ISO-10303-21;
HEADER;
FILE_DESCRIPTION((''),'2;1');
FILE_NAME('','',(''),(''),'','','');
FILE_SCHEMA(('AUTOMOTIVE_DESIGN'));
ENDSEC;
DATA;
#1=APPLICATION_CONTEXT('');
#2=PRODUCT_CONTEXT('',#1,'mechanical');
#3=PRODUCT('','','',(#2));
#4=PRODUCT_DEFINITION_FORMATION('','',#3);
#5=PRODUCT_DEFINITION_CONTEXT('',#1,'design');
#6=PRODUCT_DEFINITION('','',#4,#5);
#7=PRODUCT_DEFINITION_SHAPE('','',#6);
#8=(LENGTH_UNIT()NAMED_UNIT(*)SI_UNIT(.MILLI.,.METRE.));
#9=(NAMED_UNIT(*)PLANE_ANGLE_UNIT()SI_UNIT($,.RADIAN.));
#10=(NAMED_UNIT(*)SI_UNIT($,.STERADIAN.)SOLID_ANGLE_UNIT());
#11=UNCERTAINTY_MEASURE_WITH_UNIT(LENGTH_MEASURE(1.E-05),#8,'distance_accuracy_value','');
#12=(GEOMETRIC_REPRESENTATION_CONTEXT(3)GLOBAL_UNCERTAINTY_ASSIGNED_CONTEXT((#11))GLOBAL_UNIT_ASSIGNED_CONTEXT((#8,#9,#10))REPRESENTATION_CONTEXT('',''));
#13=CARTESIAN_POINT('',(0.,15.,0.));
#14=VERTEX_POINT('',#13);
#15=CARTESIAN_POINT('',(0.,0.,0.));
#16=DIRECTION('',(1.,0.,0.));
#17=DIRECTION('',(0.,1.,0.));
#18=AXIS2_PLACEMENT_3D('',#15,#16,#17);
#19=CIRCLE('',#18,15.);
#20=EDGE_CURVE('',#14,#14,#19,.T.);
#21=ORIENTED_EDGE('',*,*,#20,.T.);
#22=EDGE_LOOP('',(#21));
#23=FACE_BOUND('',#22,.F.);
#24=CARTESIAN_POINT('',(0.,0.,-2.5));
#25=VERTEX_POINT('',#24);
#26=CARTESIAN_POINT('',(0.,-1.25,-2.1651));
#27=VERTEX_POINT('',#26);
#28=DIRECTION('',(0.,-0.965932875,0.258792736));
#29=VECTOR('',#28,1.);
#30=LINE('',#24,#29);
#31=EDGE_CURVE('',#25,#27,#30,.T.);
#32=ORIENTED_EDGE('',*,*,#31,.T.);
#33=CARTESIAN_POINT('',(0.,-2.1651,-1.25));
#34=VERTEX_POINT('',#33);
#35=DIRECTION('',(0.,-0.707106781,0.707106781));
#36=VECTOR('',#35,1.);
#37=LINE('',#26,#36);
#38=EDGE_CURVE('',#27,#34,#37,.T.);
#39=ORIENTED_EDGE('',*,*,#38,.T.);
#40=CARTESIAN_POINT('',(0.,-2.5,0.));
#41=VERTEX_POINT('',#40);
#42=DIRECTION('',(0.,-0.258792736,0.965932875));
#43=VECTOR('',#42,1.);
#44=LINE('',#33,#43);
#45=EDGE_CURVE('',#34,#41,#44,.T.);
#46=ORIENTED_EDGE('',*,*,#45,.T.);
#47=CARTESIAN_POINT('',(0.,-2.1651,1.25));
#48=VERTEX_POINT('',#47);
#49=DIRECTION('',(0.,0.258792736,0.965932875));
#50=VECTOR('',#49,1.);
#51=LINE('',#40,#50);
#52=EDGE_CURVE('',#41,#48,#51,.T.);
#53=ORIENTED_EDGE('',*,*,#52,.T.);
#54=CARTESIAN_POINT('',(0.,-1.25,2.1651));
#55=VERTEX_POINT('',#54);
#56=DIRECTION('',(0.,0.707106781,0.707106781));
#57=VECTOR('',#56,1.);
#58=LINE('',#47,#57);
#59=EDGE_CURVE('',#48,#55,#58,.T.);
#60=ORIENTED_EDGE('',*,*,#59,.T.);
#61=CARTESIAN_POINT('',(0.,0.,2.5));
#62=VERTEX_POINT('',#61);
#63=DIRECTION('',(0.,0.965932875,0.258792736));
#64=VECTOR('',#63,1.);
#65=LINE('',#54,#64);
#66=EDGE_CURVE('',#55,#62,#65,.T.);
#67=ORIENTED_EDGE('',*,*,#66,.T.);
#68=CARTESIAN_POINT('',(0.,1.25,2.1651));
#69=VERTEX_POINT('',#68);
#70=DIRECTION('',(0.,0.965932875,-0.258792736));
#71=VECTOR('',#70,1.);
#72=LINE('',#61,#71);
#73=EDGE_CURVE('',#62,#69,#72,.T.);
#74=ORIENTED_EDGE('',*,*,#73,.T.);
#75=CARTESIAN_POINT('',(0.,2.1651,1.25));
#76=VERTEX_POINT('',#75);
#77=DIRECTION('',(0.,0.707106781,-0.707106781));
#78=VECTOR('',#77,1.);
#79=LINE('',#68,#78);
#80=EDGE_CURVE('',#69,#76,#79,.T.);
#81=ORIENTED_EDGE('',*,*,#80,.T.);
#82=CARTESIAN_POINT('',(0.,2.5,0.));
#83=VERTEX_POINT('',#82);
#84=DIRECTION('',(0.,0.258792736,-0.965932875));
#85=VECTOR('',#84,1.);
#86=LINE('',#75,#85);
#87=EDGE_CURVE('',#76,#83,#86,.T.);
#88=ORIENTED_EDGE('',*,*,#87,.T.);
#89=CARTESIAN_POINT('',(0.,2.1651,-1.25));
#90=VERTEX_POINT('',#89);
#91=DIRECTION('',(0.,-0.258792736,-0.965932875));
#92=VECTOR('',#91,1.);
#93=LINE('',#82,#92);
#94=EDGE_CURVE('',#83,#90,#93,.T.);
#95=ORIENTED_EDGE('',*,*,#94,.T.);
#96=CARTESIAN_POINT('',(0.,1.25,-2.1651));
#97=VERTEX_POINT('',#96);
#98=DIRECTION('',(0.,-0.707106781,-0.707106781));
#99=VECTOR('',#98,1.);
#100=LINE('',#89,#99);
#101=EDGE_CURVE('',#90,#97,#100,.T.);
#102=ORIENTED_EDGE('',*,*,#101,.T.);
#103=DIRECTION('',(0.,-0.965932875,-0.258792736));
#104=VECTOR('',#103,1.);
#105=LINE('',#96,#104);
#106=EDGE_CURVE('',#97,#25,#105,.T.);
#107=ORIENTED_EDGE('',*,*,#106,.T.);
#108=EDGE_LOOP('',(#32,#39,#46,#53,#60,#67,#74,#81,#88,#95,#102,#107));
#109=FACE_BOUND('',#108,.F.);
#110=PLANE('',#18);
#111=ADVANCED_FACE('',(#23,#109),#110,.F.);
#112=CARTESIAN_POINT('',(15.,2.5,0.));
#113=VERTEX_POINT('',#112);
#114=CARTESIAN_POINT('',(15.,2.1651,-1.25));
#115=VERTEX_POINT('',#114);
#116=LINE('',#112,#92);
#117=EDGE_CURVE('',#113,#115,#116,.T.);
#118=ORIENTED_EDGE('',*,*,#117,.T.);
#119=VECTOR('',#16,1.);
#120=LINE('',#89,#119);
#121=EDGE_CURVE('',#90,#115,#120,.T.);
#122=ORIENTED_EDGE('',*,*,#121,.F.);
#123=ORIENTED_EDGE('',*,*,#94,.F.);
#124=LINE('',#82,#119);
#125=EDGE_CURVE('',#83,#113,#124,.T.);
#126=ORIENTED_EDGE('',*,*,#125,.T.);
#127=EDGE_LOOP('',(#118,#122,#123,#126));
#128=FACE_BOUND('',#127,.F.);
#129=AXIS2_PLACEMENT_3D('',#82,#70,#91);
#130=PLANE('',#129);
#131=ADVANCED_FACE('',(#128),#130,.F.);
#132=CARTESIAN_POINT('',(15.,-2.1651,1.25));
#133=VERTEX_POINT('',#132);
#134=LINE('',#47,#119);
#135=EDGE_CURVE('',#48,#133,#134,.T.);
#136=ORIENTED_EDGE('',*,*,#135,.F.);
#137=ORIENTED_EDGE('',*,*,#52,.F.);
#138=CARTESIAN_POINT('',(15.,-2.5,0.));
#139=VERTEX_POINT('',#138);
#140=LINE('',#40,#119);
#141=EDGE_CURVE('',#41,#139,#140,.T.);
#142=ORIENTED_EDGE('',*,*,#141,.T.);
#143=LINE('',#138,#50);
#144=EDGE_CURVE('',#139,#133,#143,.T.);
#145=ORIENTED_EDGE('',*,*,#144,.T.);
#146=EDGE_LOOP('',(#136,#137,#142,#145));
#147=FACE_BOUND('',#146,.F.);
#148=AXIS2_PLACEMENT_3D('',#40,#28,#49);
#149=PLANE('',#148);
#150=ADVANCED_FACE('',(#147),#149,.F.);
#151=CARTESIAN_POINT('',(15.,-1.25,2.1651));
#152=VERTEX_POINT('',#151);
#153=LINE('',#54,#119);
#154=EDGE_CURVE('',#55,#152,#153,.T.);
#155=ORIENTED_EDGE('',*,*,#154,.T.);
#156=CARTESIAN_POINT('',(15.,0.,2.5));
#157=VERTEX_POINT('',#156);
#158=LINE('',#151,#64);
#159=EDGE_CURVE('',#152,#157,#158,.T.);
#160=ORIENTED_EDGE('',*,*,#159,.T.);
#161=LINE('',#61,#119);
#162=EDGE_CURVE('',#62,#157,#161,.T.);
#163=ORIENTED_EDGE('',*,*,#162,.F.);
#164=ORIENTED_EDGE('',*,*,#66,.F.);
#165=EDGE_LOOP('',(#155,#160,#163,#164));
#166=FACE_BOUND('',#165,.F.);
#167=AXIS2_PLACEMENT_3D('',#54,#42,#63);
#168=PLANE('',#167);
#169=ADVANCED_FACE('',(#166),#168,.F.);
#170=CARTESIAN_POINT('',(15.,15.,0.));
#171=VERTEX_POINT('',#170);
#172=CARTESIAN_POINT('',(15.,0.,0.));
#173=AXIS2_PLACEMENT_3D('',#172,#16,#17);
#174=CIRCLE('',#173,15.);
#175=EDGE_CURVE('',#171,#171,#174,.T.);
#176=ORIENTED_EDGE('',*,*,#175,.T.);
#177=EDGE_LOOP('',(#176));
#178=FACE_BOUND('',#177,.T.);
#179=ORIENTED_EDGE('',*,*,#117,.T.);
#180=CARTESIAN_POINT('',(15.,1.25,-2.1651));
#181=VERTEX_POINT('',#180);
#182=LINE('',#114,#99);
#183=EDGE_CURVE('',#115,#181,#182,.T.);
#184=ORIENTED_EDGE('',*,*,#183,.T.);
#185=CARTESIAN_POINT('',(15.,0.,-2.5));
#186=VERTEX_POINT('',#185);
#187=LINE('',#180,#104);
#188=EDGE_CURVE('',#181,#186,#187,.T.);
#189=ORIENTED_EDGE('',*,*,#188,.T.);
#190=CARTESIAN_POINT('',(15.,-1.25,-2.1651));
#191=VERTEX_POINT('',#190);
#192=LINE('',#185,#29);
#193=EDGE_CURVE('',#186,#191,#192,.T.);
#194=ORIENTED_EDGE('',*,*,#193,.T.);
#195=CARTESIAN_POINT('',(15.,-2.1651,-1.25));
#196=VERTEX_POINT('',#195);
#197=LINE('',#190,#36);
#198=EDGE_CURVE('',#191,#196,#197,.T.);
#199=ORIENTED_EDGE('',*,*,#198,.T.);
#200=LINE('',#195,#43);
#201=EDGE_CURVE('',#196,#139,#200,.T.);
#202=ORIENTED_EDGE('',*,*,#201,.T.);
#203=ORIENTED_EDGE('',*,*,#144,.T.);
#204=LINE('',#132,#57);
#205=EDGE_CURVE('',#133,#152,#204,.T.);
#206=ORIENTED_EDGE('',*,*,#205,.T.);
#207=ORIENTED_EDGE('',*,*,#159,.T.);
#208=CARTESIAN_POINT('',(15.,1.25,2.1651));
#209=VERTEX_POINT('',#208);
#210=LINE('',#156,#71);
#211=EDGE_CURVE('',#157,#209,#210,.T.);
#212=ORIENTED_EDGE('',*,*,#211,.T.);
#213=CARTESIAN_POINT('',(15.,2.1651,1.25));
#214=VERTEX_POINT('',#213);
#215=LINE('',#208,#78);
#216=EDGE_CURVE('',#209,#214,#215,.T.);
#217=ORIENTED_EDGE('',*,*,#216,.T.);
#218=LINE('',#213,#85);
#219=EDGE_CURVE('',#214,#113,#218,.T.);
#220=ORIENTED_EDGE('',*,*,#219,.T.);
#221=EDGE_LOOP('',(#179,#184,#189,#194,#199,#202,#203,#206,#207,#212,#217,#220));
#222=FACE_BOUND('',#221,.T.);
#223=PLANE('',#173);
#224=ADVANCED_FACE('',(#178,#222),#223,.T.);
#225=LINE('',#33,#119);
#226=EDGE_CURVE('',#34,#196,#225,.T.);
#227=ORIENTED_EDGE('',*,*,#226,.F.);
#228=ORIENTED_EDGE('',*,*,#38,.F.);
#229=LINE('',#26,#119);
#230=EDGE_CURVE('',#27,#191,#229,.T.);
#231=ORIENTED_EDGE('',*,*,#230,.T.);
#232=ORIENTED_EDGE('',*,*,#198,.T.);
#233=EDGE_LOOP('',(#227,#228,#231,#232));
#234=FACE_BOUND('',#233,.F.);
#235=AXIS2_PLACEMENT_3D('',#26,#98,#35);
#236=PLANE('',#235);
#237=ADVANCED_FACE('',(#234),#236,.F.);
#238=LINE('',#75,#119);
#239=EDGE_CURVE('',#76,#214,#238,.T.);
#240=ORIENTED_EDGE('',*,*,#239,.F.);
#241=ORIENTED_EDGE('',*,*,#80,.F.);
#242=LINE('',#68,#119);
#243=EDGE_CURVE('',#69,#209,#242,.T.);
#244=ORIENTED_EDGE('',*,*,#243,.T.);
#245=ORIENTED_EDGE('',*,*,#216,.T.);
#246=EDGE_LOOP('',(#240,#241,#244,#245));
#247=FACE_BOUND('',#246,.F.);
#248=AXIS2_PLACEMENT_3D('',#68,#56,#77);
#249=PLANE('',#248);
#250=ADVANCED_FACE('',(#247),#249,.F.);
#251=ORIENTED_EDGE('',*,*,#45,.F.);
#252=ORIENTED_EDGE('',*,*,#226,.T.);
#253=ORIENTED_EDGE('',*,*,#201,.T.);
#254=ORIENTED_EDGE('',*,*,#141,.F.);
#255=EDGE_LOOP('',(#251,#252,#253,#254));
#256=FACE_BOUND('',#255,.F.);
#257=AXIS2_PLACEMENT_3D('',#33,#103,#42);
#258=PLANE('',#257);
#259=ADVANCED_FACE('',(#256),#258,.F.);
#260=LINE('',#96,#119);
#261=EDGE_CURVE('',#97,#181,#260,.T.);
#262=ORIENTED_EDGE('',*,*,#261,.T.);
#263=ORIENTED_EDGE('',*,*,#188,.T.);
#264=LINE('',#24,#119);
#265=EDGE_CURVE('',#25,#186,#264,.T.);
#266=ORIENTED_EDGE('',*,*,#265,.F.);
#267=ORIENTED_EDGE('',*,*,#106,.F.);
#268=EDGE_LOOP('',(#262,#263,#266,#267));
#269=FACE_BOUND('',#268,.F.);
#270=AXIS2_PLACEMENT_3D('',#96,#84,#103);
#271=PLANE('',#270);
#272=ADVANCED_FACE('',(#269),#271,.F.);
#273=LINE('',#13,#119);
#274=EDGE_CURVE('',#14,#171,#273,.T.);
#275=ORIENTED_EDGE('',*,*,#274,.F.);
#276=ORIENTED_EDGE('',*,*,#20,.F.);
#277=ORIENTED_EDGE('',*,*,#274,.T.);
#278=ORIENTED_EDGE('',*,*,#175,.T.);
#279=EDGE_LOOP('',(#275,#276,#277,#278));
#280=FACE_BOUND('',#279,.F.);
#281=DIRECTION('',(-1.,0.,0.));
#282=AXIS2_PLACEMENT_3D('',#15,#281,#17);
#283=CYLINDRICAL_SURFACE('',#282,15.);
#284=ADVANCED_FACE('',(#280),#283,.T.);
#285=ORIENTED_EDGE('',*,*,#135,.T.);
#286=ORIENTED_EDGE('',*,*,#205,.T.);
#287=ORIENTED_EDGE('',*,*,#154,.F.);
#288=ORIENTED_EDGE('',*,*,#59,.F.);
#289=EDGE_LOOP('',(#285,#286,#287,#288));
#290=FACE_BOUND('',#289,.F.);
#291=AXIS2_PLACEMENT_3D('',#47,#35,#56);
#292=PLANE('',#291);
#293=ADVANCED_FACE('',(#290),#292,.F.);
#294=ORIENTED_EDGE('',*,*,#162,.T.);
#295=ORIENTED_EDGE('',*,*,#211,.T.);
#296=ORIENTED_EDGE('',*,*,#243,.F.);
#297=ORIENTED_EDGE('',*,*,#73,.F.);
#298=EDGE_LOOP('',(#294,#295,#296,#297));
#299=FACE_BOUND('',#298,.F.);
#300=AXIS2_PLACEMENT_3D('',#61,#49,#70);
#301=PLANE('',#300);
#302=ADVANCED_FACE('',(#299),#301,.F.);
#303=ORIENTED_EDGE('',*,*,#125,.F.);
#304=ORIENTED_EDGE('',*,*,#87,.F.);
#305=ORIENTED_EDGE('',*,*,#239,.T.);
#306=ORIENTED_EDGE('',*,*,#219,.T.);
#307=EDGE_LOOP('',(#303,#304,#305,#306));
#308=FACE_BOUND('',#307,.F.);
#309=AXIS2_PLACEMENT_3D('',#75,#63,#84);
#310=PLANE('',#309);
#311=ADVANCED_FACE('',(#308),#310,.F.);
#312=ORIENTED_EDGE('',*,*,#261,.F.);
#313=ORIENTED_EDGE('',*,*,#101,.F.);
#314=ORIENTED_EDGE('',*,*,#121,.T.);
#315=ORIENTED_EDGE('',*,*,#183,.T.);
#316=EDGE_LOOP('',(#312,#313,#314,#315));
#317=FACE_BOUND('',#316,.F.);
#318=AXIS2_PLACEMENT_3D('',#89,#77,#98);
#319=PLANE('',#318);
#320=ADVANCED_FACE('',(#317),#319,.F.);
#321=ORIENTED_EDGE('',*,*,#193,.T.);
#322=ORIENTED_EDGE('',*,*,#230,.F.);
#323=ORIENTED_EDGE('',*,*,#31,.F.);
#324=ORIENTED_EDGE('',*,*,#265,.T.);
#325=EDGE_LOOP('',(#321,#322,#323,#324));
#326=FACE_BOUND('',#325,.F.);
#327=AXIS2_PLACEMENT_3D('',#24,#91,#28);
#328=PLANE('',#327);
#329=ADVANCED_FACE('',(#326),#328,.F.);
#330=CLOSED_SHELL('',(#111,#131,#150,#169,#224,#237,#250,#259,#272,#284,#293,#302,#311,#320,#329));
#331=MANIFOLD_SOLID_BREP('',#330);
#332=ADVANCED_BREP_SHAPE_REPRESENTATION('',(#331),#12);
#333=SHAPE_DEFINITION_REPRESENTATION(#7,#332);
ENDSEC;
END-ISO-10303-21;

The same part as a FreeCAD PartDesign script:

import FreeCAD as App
import Part
import Sketcher

V = App.Vector
Q = App.Units.Quantity


def add_polygon(sketch, points):
    """Adds a closed chain of lines whose ends are joined by coincident constraints."""
    first, n = sketch.GeometryCount, len(points)
    for a, b in zip(points, points[1:] + points[:1]):
        sketch.addGeometry(Part.LineSegment(App.Vector(*a, 0), App.Vector(*b, 0)), False)
    for i in range(n):
        sketch.addConstraint(Sketcher.Constraint("Coincident", first + i, 2, first + (i + 1) % n, 1))

doc = App.newDocument("Part")
body = doc.addObject("PartDesign::Body", "Body")

# Sketch on YZ plane
sketch1 = doc.addObject("Sketcher::SketchObject", "Sketch")
body.addObject(sketch1)
sketch1.AttachmentSupport = (doc.YZ_Plane, [""])
sketch1.MapMode = "FlatFace"
sketch1.addGeometry(Part.Circle(V(0, 0, 0), V(0, 0, 1), 15), False)  # 0
add_polygon(sketch1, [(2.1651, 1.25), (2.5, 0), (2.1651, -1.25), (1.25, -2.1651), (0, -2.5), (-1.25, -2.1651), (-2.1651, -1.25), (-2.5, 0), (-2.1651, 1.25), (-1.25, 2.1651), (0, 2.5), (1.25, 2.1651)])  # lines 1-12
sketch1.addConstraint([
    Sketcher.Constraint("Coincident", 0, 3, -1, 1),
    Sketcher.Constraint("Symmetric", 1, 2, 7, 2, -1, 1),
    Sketcher.Constraint("Symmetric", 2, 2, 8, 2, -1, 1),
    Sketcher.Constraint("Symmetric", 3, 2, 9, 2, -1, 1),
    Sketcher.Constraint("Symmetric", 4, 2, 10, 2, -1, 1),
    Sketcher.Constraint("Symmetric", 5, 2, 11, 2, -1, 1),
    Sketcher.Constraint("Symmetric", 6, 2, 12, 2, -1, 1),
    Sketcher.Constraint("Symmetric", 3, 2, 5, 2, -2),
    Sketcher.Constraint("Symmetric", 2, 2, 6, 2, -2),
    Sketcher.Constraint("PointOnObject", 1, 2, -1),
    Sketcher.Constraint("PointOnObject", 4, 2, -2),
    Sketcher.Constraint("Perpendicular", 1, 4),
    Sketcher.Constraint("Perpendicular", 3, 6),
    Sketcher.Constraint("Equal", 2, 3),
    Sketcher.Constraint("Equal", 3, 4),
    Sketcher.Constraint("Diameter", 0, Q("30 mm")),
    Sketcher.Constraint("DistanceX", -1, 1, 1, 2, Q("2.5 mm")),
    Sketcher.Constraint("DistanceX", 5, 2, 3, 2, Q("2.5 mm")),
])
pad1 = doc.addObject("PartDesign::Pad", "Pad")
body.addObject(pad1)
pad1.Profile = sketch1
pad1.Length = 15

doc.recompute()
